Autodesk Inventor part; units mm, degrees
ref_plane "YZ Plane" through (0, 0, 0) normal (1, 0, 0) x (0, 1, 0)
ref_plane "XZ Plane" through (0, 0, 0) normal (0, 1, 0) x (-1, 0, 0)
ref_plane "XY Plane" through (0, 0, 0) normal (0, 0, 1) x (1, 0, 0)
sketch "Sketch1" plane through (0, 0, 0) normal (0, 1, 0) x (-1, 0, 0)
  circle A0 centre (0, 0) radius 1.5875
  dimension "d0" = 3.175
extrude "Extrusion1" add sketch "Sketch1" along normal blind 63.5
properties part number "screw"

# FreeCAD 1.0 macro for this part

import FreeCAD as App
import Part
import Sketcher
from FreeCAD import Vector
Q = App.Units.Quantity

doc = App.newDocument("Part")
params = doc.addObject("Spreadsheet::Sheet", "Params")
for row, (alias, value) in enumerate([
    ("sketch1_diameter", "0.125 in"),
    ("pad1_length", "2.5 in"),
], start=1):
    params.set(f"A{row}", alias)
    params.set(f"B{row}", "=" + value)
    params.setAlias(f"B{row}", alias)

body = doc.addObject("PartDesign::Body", "Body")

# Sketch on XZ plane
sketch1 = body.newObject("Sketcher::SketchObject", "Sketch")
sketch1.AttachmentSupport = (doc.getObject("XZ_Plane"), [""])
sketch1.MapMode = "FlatFace"
sketch1.addGeometry(Part.Circle(Vector(0, 0, 0), Vector(0, 0, 1), 1.6), False)
sketch1.addConstraint([
    Sketcher.Constraint("Coincident", 0, 3, -1, 1),
    Sketcher.Constraint("Diameter", 0, Q("0.125 in")),
])
sketch1.setExpression("Constraints[1]", "Params.sketch1_diameter")
pad1 = body.newObject("PartDesign::Pad", "Pad")
pad1.Profile = sketch1
pad1.setExpression("Length", "Params.pad1_length")
pad1.Reversed = True

doc.recompute()
